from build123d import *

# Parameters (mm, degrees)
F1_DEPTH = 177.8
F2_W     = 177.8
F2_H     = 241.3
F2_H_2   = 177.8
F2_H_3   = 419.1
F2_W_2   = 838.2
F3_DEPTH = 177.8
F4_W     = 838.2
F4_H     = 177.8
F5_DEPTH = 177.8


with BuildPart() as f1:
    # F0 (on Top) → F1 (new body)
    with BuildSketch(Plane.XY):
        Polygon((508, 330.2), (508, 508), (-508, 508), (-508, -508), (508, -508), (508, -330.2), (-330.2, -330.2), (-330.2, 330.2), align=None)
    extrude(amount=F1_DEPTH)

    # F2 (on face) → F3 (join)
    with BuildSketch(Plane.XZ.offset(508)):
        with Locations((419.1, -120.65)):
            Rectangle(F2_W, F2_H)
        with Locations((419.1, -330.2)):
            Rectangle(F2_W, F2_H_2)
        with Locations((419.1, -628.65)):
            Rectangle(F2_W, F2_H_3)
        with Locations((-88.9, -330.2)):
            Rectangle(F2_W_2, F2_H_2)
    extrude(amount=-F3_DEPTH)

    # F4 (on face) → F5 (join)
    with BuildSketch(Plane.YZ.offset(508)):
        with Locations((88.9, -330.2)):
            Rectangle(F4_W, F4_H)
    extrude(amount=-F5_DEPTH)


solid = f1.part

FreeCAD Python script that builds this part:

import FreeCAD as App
import Part
import Sketcher
Q = App.Units.Quantity

doc = App.newDocument("Part")
body = doc.addObject("PartDesign::Body", "Body")

sketch1 = body.newObject("Sketcher::SketchObject", "Sketch")
sketch1.AttachmentSupport = (doc.getObject("XY_Plane"), [""])
sketch1.MapMode = "FlatFace"
sketch1.addGeometry([
    Part.LineSegment(App.Vector(508, 330, 0), App.Vector(508, 508, 0)),
    Part.LineSegment(App.Vector(508, 508, 0), App.Vector(-508, 508, 0)),
    Part.LineSegment(App.Vector(-508, 508, 0), App.Vector(-508, -508, 0)),
    Part.LineSegment(App.Vector(-508, -508, 0), App.Vector(508, -508, 0)),
    Part.LineSegment(App.Vector(508, -508, 0), App.Vector(508, -330, 0)),
    Part.LineSegment(App.Vector(508, -330, 0), App.Vector(-330, -330, 0)),
    Part.LineSegment(App.Vector(-330, -330, 0), App.Vector(-330, 330, 0)),
    Part.LineSegment(App.Vector(-330, 330, 0), App.Vector(508, 330, 0)),
], False)
sketch1.addConstraint([
    Sketcher.Constraint("Coincident", 0, 2, 1, 1),
    Sketcher.Constraint("Coincident", 1, 2, 2, 1),
    Sketcher.Constraint("Coincident", 2, 2, 3, 1),
    Sketcher.Constraint("Coincident", 3, 2, 4, 1),
    Sketcher.Constraint("Coincident", 4, 2, 5, 1),
    Sketcher.Constraint("Coincident", 5, 2, 6, 1),
    Sketcher.Constraint("Coincident", 6, 2, 7, 1),
    Sketcher.Constraint("Coincident", 7, 2, 0, 1),
    Sketcher.Constraint("Vertical", 0),
    Sketcher.Constraint("Horizontal", 1),
    Sketcher.Constraint("Vertical", 2),
    Sketcher.Constraint("Horizontal", 3),
    Sketcher.Constraint("Vertical", 4),
    Sketcher.Constraint("Horizontal", 5),
    Sketcher.Constraint("Vertical", 6),
    Sketcher.Constraint("Horizontal", 7),
    Sketcher.Constraint("Symmetric", 0, 2, 2, 2, -1, 1),
    Sketcher.Constraint("Symmetric", 4, 2, 7, 2, -1),
    Sketcher.Constraint("Equal", 3, 2),
    Sketcher.Constraint("DistanceX", 1, 2, 1, 1, Q("40 in")),
    Sketcher.Constraint("DistanceX", 5, 2, 5, 1, Q("33 in")),
    Sketcher.Constraint("DistanceY", 0, 1, 0, 2, Q("7 in")),
])
pad1 = body.newObject("PartDesign::Pad", "Pad")
pad1.Profile = sketch1
pad1.Length = Q("7 in")

sketch2 = body.newObject("Sketcher::SketchObject", "Sketch001")
sketch2.AttachmentSupport = (doc.getObject("XZ_Plane"), [""])
sketch2.MapMode = "FlatFace"
sketch2.AttachmentOffset = App.Placement(App.Vector(0, 0, 20 * 25.4), App.Rotation())
sketch2.addGeometry([
    Part.LineSegment(App.Vector(330, 0, 0), App.Vector(330, -241, 0)),
    Part.LineSegment(App.Vector(330, -241, 0), App.Vector(-508, -241, 0)),
    Part.LineSegment(App.Vector(-508, -241, 0), App.Vector(-508, -419, 0)),
    Part.LineSegment(App.Vector(-508, -419, 0), App.Vector(330, -419, 0)),
    Part.LineSegment(App.Vector(330, -419, 0), App.Vector(330, -838, 0)),
    Part.LineSegment(App.Vector(330, -838, 0), App.Vector(508, -838, 0)),
    Part.LineSegment(App.Vector(508, -838, 0), App.Vector(508, 0, 0)),
    Part.LineSegment(App.Vector(508, 0, 0), App.Vector(330, 0, 0)),
], False)
sketch2.addConstraint([
    Sketcher.Constraint("Coincident", 0, 2, 1, 1),
    Sketcher.Constraint("Coincident", 1, 2, 2, 1),
    Sketcher.Constraint("Coincident", 2, 2, 3, 1),
    Sketcher.Constraint("Coincident", 3, 2, 4, 1),
    Sketcher.Constraint("Coincident", 4, 2, 5, 1),
    Sketcher.Constraint("Coincident", 5, 2, 6, 1),
    Sketcher.Constraint("Coincident", 6, 2, 7, 1),
    Sketcher.Constraint("Coincident", 7, 2, 0, 1),
    Sketcher.Constraint("Vertical", 0),
    Sketcher.Constraint("Horizontal", 1),
    Sketcher.Constraint("Vertical", 2),
    Sketcher.Constraint("Horizontal", 3),
    Sketcher.Constraint("Vertical", 4),
    Sketcher.Constraint("Horizontal", 5),
    Sketcher.Constraint("Vertical", 6),
    Sketcher.Constraint("Horizontal", 7),
    Sketcher.Constraint("PointOnObject", 6, 2, -1),
    Sketcher.Constraint("Vertical", 0, 2, 3, 2),
    Sketcher.Constraint("Equal", 7, 2),
    Sketcher.Constraint("Equal", 3, 6),
    Sketcher.Constraint("DistanceX", 1, 2, 1, 1, Q("33 in")),
    Sketcher.Constraint("DistanceX", 5, 1, 5, 2, Q("7 in")),
    Sketcher.Constraint("DistanceY", 0, 2, 0, 1, Q("9.5 in")),
    Sketcher.Constraint("DistanceX", -1, 1, 0, 2, Q("13 in")),
])
pad2 = body.newObject("PartDesign::Pad", "Pad001")
pad2.Profile = sketch2
pad2.Length = Q("7 in")
pad2.Reversed = True

sketch3 = body.newObject("Sketcher::SketchObject", "Sketch002")
sketch3.AttachmentSupport = (doc.getObject("YZ_Plane"), [""])
sketch3.MapMode = "FlatFace"
sketch3.AttachmentOffset = App.Placement(App.Vector(0, 0, 20 * 25.4), App.Rotation())
sketch3.addGeometry([
    Part.LineSegment(App.Vector(-330, -241, 0), App.Vector(-330, -419, 0)),
    Part.LineSegment(App.Vector(-330, -419, 0), App.Vector(508, -419, 0)),
    Part.LineSegment(App.Vector(508, -419, 0), App.Vector(508, -241, 0)),
    Part.LineSegment(App.Vector(508, -241, 0), App.Vector(-330, -241, 0)),
], False)
sketch3.addConstraint([
    Sketcher.Constraint("Coincident", 0, 2, 1, 1),
    Sketcher.Constraint("Coincident", 1, 2, 2, 1),
    Sketcher.Constraint("Coincident", 2, 2, 3, 1),
    Sketcher.Constraint("Coincident", 3, 2, 0, 1),
    Sketcher.Constraint("Vertical", 0),
    Sketcher.Constraint("Horizontal", 1),
    Sketcher.Constraint("Vertical", 2),
    Sketcher.Constraint("Horizontal", 3),
    Sketcher.Constraint("DistanceX", 1, 1, 1, 2, Q("33 in")),
    Sketcher.Constraint("DistanceY", 0, 2, 0, 1, Q("7 in")),
    Sketcher.Constraint("DistanceX", 0, 2, -1, 1, Q("13 in")),
    Sketcher.Constraint("DistanceY", 0, 2, -1, 1, Q("16.5 in")),
])
pad3 = body.newObject("PartDesign::Pad", "Pad002")
pad3.Profile = sketch3
pad3.Length = Q("7 in")
pad3.Reversed = True

doc.recompute()
